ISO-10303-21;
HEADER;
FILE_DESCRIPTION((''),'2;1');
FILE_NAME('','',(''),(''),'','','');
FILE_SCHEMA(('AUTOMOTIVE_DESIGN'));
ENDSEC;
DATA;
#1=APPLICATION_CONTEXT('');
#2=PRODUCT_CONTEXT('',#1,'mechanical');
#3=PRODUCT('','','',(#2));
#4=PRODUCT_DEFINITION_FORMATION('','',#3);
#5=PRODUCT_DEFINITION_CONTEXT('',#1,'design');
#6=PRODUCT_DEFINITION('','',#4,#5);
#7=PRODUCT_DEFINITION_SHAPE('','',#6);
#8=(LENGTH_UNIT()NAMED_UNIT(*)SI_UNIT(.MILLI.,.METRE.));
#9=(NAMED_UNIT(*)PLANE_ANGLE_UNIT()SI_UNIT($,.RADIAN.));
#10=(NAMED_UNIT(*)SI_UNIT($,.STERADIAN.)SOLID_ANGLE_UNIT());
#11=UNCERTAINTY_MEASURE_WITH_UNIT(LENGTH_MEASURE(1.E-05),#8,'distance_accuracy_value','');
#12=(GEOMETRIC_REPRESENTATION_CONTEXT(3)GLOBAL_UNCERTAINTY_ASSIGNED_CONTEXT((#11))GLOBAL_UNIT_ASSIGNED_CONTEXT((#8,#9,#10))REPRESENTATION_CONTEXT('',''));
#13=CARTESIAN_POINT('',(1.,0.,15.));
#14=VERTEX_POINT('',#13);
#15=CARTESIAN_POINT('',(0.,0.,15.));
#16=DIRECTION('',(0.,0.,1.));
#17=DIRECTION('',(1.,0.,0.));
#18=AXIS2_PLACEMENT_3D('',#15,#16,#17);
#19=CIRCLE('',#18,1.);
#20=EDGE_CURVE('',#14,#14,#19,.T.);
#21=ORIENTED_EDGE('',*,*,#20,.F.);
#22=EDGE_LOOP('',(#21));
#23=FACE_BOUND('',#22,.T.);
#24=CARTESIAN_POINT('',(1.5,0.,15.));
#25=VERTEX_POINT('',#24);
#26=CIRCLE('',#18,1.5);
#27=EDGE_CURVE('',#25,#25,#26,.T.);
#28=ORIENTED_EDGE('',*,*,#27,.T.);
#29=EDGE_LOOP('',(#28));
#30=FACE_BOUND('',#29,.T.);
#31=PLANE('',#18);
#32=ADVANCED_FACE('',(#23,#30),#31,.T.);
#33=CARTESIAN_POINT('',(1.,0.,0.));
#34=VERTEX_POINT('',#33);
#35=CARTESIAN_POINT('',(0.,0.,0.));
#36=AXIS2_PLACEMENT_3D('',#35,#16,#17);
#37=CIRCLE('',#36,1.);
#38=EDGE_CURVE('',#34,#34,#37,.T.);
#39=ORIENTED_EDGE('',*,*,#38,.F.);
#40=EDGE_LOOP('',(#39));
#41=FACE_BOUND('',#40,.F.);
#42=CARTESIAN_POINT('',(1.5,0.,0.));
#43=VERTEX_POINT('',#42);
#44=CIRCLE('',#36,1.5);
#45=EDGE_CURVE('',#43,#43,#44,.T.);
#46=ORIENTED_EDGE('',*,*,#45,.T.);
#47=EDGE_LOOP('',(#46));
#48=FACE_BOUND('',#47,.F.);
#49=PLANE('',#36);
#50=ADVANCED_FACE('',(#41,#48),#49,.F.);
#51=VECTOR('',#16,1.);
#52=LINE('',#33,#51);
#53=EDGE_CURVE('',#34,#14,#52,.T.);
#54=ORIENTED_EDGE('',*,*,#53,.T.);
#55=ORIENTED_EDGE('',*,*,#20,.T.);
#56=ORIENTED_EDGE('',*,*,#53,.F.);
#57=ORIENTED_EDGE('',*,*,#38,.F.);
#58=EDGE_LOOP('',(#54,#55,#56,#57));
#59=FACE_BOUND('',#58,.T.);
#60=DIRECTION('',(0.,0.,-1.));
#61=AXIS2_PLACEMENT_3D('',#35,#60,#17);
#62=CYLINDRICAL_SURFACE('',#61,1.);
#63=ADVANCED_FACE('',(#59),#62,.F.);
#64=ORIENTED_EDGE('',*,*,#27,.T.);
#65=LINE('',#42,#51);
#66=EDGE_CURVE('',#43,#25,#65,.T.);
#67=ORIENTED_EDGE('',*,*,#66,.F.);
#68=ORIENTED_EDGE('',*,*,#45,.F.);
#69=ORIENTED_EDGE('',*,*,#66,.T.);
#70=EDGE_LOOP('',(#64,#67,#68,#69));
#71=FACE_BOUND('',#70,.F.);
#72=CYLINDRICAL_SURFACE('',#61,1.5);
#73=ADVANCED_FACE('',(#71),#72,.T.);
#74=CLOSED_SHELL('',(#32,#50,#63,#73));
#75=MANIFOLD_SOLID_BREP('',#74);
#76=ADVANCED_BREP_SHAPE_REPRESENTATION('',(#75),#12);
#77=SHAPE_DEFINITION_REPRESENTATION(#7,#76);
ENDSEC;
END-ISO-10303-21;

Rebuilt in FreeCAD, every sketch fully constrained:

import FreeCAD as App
import Part
import Sketcher

V = App.Vector
Q = App.Units.Quantity

doc = App.newDocument("Part")
body = doc.addObject("PartDesign::Body", "Body")

# Sketch on XY plane
sketch1 = body.newObject("Sketcher::SketchObject", "Sketch")
sketch1.AttachmentSupport = (doc.getObject("XY_Plane"), [""])
sketch1.MapMode = "FlatFace"
sketch1.addGeometry([
    Part.Circle(V(0, 0, 0), V(0, 0, 1), 1.5),
    Part.Circle(V(0, 0, 0), V(0, 0, 1), 1),
], False)
sketch1.addConstraint([
    Sketcher.Constraint("Coincident", 0, 3, -1, 1),
    Sketcher.Constraint("Coincident", 1, 3, -1, 1),
    Sketcher.Constraint("Diameter", 0, Q("3 mm")),
    Sketcher.Constraint("Diameter", 1, Q("2 mm")),
])
pad1 = body.newObject("PartDesign::Pad", "Pad")
pad1.Profile = sketch1
pad1.Length = 15

doc.recompute()
